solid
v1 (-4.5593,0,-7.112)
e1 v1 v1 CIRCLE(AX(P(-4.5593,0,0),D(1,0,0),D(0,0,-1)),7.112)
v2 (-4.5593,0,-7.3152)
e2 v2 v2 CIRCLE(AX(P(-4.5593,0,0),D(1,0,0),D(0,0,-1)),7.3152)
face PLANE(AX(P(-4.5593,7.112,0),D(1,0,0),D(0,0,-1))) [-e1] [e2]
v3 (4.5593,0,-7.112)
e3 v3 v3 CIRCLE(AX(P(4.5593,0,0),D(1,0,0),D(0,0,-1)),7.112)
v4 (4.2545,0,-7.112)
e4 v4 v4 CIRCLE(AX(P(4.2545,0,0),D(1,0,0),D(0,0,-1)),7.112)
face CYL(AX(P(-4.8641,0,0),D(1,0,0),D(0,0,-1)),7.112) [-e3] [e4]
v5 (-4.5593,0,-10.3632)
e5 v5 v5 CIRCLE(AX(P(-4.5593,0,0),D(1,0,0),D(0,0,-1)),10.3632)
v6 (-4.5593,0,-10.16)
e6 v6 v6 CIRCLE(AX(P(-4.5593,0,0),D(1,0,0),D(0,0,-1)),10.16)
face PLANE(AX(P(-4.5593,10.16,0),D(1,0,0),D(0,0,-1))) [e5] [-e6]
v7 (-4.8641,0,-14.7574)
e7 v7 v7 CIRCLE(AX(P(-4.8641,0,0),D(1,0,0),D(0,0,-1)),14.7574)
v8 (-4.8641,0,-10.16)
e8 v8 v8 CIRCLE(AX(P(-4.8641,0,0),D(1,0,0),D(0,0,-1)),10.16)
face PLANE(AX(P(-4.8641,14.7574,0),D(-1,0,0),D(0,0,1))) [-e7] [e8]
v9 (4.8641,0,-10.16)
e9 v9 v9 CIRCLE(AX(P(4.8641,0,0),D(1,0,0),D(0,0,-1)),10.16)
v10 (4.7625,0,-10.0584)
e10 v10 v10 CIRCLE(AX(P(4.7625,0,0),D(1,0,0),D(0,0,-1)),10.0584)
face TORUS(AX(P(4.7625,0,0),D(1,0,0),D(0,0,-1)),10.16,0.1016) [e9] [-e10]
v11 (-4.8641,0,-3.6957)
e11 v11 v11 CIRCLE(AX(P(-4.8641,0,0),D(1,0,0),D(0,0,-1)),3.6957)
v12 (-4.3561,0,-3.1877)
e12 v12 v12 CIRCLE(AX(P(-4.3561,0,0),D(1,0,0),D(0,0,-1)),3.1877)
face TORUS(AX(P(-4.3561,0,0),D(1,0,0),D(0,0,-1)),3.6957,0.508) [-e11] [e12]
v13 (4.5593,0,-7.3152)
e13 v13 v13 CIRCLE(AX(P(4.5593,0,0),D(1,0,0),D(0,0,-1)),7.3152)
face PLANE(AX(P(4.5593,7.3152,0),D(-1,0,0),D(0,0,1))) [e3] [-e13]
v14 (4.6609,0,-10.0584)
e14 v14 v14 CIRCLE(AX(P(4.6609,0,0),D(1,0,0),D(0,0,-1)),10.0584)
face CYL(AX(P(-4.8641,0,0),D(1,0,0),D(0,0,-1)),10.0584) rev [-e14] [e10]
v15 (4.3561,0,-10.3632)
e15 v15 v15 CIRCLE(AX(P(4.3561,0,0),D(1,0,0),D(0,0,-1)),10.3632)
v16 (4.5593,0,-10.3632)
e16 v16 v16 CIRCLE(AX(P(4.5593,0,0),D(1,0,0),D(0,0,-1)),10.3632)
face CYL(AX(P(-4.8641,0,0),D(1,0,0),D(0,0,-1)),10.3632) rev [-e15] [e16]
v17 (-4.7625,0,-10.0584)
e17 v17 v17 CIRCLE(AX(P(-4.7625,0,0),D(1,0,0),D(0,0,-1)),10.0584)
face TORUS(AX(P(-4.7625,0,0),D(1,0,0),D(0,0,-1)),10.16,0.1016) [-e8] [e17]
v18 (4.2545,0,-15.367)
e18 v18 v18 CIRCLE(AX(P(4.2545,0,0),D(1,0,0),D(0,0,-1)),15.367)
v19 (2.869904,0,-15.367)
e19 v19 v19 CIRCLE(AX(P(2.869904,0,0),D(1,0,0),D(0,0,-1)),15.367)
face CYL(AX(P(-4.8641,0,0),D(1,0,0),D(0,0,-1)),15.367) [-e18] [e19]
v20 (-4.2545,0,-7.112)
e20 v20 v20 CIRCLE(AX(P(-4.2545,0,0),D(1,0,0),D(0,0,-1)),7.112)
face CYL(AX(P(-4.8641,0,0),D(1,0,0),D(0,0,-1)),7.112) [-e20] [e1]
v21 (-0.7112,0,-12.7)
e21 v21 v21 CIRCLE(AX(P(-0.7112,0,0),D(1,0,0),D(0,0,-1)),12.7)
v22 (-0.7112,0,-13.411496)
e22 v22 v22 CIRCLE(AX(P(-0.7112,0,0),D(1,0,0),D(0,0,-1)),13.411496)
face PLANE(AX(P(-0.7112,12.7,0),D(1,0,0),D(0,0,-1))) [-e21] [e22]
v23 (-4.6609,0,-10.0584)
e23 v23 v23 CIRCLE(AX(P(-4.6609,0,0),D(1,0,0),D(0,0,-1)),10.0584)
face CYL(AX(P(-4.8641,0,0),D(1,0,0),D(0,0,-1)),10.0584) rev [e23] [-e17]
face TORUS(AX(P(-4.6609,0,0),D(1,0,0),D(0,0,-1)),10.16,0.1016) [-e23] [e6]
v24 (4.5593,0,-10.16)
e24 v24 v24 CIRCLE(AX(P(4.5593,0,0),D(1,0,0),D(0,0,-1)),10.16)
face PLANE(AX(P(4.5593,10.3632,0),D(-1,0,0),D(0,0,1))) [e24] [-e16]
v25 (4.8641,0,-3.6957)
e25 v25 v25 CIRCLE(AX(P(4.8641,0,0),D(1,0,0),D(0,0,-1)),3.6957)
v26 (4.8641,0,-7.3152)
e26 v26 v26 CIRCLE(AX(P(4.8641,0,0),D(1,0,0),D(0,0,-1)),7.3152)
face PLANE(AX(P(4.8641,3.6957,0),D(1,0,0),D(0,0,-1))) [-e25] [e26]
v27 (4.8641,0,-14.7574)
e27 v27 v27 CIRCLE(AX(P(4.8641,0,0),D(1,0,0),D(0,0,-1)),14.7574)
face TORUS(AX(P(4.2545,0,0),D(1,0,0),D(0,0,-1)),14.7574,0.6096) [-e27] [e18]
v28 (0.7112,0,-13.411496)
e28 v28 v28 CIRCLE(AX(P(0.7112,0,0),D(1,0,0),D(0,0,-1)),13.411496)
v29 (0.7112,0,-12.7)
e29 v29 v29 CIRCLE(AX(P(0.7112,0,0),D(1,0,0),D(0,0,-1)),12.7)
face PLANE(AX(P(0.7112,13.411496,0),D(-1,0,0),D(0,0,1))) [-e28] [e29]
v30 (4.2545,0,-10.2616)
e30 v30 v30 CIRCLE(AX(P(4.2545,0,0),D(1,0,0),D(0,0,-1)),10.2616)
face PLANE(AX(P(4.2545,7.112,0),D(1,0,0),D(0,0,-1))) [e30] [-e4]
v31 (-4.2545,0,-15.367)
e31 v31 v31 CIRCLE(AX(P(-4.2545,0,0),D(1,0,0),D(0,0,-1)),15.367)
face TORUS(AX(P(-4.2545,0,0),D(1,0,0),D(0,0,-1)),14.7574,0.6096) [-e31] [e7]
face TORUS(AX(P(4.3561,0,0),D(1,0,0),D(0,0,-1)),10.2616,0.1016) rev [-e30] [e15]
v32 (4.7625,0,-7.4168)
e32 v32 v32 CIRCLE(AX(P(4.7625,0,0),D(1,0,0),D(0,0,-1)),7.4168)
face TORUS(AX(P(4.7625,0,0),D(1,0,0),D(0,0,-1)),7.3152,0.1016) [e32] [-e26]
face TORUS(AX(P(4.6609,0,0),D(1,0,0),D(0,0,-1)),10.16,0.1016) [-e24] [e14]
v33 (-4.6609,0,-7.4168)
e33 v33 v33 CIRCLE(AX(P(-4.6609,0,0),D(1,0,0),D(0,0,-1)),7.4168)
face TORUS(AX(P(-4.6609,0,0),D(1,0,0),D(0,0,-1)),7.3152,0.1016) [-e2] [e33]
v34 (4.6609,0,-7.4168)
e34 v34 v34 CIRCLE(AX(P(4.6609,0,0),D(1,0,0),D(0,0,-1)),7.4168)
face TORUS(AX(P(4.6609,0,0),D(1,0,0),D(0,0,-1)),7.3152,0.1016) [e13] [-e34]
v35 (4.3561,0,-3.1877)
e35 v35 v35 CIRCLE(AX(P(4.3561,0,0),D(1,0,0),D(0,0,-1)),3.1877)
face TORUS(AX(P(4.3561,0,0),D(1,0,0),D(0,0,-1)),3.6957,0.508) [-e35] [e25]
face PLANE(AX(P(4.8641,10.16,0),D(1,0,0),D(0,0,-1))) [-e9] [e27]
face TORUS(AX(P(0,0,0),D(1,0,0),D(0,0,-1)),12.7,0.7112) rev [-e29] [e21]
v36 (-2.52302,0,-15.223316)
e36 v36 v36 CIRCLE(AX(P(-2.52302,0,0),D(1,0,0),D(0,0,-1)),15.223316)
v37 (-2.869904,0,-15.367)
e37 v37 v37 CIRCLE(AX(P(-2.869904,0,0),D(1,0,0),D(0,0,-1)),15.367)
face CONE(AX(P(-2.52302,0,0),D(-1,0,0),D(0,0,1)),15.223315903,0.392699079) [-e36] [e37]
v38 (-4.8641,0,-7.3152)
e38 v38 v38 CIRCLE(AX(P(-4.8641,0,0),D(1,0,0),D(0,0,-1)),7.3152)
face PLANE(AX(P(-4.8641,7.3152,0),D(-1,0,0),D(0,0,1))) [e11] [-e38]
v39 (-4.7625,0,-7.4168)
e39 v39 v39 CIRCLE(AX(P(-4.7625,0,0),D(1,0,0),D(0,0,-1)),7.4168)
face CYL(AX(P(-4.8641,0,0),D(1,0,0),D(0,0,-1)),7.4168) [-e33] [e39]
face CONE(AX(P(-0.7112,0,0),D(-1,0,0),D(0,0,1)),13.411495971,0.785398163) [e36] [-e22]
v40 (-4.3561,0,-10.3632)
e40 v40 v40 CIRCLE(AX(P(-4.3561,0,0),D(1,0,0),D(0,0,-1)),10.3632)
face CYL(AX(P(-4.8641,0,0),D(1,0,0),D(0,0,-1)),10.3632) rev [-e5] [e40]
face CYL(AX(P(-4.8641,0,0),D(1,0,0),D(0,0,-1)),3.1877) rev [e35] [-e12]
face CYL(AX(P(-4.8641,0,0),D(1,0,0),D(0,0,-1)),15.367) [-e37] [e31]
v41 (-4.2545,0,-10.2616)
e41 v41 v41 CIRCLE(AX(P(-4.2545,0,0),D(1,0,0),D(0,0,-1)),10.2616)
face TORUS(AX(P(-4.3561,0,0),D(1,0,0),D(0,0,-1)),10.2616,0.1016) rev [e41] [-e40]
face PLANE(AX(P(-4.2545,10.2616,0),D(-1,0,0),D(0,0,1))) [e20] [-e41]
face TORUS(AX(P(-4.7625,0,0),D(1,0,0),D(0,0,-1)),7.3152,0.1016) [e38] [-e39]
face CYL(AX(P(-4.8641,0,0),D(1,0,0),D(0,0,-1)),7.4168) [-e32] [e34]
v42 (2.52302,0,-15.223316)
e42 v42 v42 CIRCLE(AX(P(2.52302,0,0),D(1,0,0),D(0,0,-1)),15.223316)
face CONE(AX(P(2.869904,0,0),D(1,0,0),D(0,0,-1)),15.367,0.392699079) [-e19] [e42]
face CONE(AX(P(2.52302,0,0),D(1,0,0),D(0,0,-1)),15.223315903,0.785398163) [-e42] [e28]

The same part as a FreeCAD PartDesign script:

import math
import FreeCAD as App
import Part
import Sketcher
Q = App.Units.Quantity

doc = App.newDocument("Part")
body = doc.addObject("PartDesign::Body", "Body")

sketch1 = body.newObject("Sketcher::SketchObject", "Sketch")
sketch1.AttachmentSupport = (doc.getObject("XY_Plane"), [""])
sketch1.MapMode = "FlatFace"
sketch1.addGeometry(Part.LineSegment(App.Vector(-4.8641, 7.3152, 0), App.Vector(-4.8641, 3.6957, 0)), False)
sketch1.addGeometry(Part.ArcOfCircle(Part.Circle(App.Vector(-4.3561, 3.6957, 0), App.Vector(0, 0, 1), 0.508), math.radians(180), math.radians(270)), False)
sketch1.addGeometry(Part.LineSegment(App.Vector(-4.3561, 3.1877, 0), App.Vector(4.3561, 3.1877, 0)), False)
sketch1.addGeometry(Part.ArcOfCircle(Part.Circle(App.Vector(4.3561, 3.6957, 0), App.Vector(0, 0, 1), 0.508), math.radians(-90), math.radians(0)), False)
sketch1.addGeometry(Part.LineSegment(App.Vector(4.8641, 3.6957, 0), App.Vector(4.8641, 7.3152, 0)), False)
sketch1.addGeometry(Part.ArcOfCircle(Part.Circle(App.Vector(4.7625, 7.3152, 0), App.Vector(0, 0, 1), 0.1016), math.radians(0), math.radians(90)), False)
sketch1.addGeometry(Part.LineSegment(App.Vector(4.7625, 7.4168, 0), App.Vector(4.6609, 7.4168, 0)), False)
sketch1.addGeometry(Part.ArcOfCircle(Part.Circle(App.Vector(4.6609, 7.3152, 0), App.Vector(0, 0, 1), 0.1016), math.radians(90), math.radians(180)), False)
sketch1.addGeometry(Part.LineSegment(App.Vector(4.5593, 7.3152, 0), App.Vector(4.5593, 7.112, 0)), False)
sketch1.addGeometry(Part.LineSegment(App.Vector(4.5593, 7.112, 0), App.Vector(4.2545, 7.112, 0)), False)
sketch1.addGeometry(Part.LineSegment(App.Vector(4.2545, 7.112, 0), App.Vector(4.2545, 10.2616, 0)), False)
sketch1.addGeometry(Part.ArcOfCircle(Part.Circle(App.Vector(4.3561, 10.2616, 0), App.Vector(0, 0, 1), 0.1016), math.radians(90), math.radians(180)), False)
sketch1.addGeometry(Part.LineSegment(App.Vector(4.3561, 10.3632, 0), App.Vector(4.5593, 10.3632, 0)), False)
sketch1.addGeometry(Part.LineSegment(App.Vector(4.5593, 10.3632, 0), App.Vector(4.5593, 10.16, 0)), False)
sketch1.addGeometry(Part.ArcOfCircle(Part.Circle(App.Vector(4.6609, 10.16, 0), App.Vector(0, 0, 1), 0.1016), math.radians(180), math.radians(270)), False)
sketch1.addGeometry(Part.LineSegment(App.Vector(4.6609, 10.0584, 0), App.Vector(4.7625, 10.0584, 0)), False)
sketch1.addGeometry(Part.ArcOfCircle(Part.Circle(App.Vector(4.7625, 10.16, 0), App.Vector(0, 0, 1), 0.1016), math.radians(-90), math.radians(0)), False)
sketch1.addGeometry(Part.LineSegment(App.Vector(4.8641, 10.16, 0), App.Vector(4.8641, 14.7574, 0)), False)
sketch1.addGeometry(Part.ArcOfCircle(Part.Circle(App.Vector(4.2545, 14.7574, 0), App.Vector(0, 0, 1), 0.6096), math.radians(0), math.radians(90)), False)
sketch1.addGeometry(Part.LineSegment(App.Vector(4.2545, 15.367, 0), App.Vector(2.869904, 15.367, 0)), False)
sketch1.addGeometry(Part.LineSegment(App.Vector(2.869904, 15.367, 0), App.Vector(2.52302, 15.223316, 0)), False)
sketch1.addGeometry(Part.LineSegment(App.Vector(2.52302, 15.223316, 0), App.Vector(0.7112, 13.411496, 0)), False)
sketch1.addGeometry(Part.LineSegment(App.Vector(0.7112, 13.411496, 0), App.Vector(0.7112, 12.7, 0)), False)
sketch1.addGeometry(Part.ArcOfCircle(Part.Circle(App.Vector(0, 12.7, 0), App.Vector(0, 0, 1), 0.7112), math.radians(180), math.radians(360)), False)
sketch1.addGeometry(Part.LineSegment(App.Vector(-0.7112, 12.7, 0), App.Vector(-0.7112, 13.411496, 0)), False)
sketch1.addGeometry(Part.LineSegment(App.Vector(-0.7112, 13.411496, 0), App.Vector(-2.52302, 15.223316, 0)), False)
sketch1.addGeometry(Part.LineSegment(App.Vector(-2.52302, 15.223316, 0), App.Vector(-2.869904, 15.367, 0)), False)
sketch1.addGeometry(Part.LineSegment(App.Vector(-2.869904, 15.367, 0), App.Vector(-4.2545, 15.367, 0)), False)
sketch1.addGeometry(Part.ArcOfCircle(Part.Circle(App.Vector(-4.2545, 14.7574, 0), App.Vector(0, 0, 1), 0.6096), math.radians(90), math.radians(180)), False)
sketch1.addGeometry(Part.LineSegment(App.Vector(-4.8641, 14.7574, 0), App.Vector(-4.8641, 10.16, 0)), False)
sketch1.addGeometry(Part.ArcOfCircle(Part.Circle(App.Vector(-4.7625, 10.16, 0), App.Vector(0, 0, 1), 0.1016), math.radians(180), math.radians(270)), False)
sketch1.addGeometry(Part.LineSegment(App.Vector(-4.7625, 10.0584, 0), App.Vector(-4.6609, 10.0584, 0)), False)
sketch1.addGeometry(Part.ArcOfCircle(Part.Circle(App.Vector(-4.6609, 10.16, 0), App.Vector(0, 0, 1), 0.1016), math.radians(-90), math.radians(0)), False)
sketch1.addGeometry(Part.LineSegment(App.Vector(-4.5593, 10.16, 0), App.Vector(-4.5593, 10.3632, 0)), False)
sketch1.addGeometry(Part.LineSegment(App.Vector(-4.5593, 10.3632, 0), App.Vector(-4.3561, 10.3632, 0)), False)
sketch1.addGeometry(Part.ArcOfCircle(Part.Circle(App.Vector(-4.3561, 10.2616, 0), App.Vector(0, 0, 1), 0.1016), math.radians(0), math.radians(90)), False)
sketch1.addGeometry(Part.LineSegment(App.Vector(-4.2545, 10.2616, 0), App.Vector(-4.2545, 7.112, 0)), False)
sketch1.addGeometry(Part.LineSegment(App.Vector(-4.2545, 7.112, 0), App.Vector(-4.5593, 7.112, 0)), False)
sketch1.addGeometry(Part.LineSegment(App.Vector(-4.5593, 7.112, 0), App.Vector(-4.5593, 7.3152, 0)), False)
sketch1.addGeometry(Part.ArcOfCircle(Part.Circle(App.Vector(-4.6609, 7.3152, 0), App.Vector(0, 0, 1), 0.1016), math.radians(0), math.radians(90)), False)
sketch1.addGeometry(Part.LineSegment(App.Vector(-4.6609, 7.4168, 0), App.Vector(-4.7625, 7.4168, 0)), False)
sketch1.addGeometry(Part.ArcOfCircle(Part.Circle(App.Vector(-4.7625, 7.3152, 0), App.Vector(0, 0, 1), 0.1016), math.radians(90), math.radians(180)), False)
sketch1.addConstraint(Sketcher.Constraint("Tangent", 0, 2, 1, 1))
sketch1.addConstraint(Sketcher.Constraint("Tangent", 1, 2, 2, 1))
sketch1.addConstraint(Sketcher.Constraint("Tangent", 2, 2, 3, 1))
sketch1.addConstraint(Sketcher.Constraint("Tangent", 3, 2, 4, 1))
sketch1.addConstraint(Sketcher.Constraint("Tangent", 4, 2, 5, 1))
sketch1.addConstraint(Sketcher.Constraint("Tangent", 5, 2, 6, 1))
sketch1.addConstraint(Sketcher.Constraint("Tangent", 6, 2, 7, 1))
sketch1.addConstraint(Sketcher.Constraint("Tangent", 7, 2, 8, 1))
sketch1.addConstraint(Sketcher.Constraint("Coincident", 8, 2, 9, 1))
sketch1.addConstraint(Sketcher.Constraint("Coincident", 9, 2, 10, 1))
sketch1.addConstraint(Sketcher.Constraint("Tangent", 10, 2, 11, 2))
sketch1.addConstraint(Sketcher.Constraint("Tangent", 11, 1, 12, 1))
sketch1.addConstraint(Sketcher.Constraint("Coincident", 12, 2, 13, 1))
sketch1.addConstraint(Sketcher.Constraint("Tangent", 13, 2, 14, 1))
sketch1.addConstraint(Sketcher.Constraint("Tangent", 14, 2, 15, 1))
sketch1.addConstraint(Sketcher.Constraint("Tangent", 15, 2, 16, 1))
sketch1.addConstraint(Sketcher.Constraint("Tangent", 16, 2, 17, 1))
sketch1.addConstraint(Sketcher.Constraint("Tangent", 17, 2, 18, 1))
sketch1.addConstraint(Sketcher.Constraint("Tangent", 18, 2, 19, 1))
sketch1.addConstraint(Sketcher.Constraint("Coincident", 19, 2, 20, 1))
sketch1.addConstraint(Sketcher.Constraint("Coincident", 20, 2, 21, 1))
sketch1.addConstraint(Sketcher.Constraint("Coincident", 21, 2, 22, 1))
sketch1.addConstraint(Sketcher.Constraint("Tangent", 22, 2, 23, 2))
sketch1.addConstraint(Sketcher.Constraint("Tangent", 23, 1, 24, 1))
sketch1.addConstraint(Sketcher.Constraint("Coincident", 24, 2, 25, 1))
sketch1.addConstraint(Sketcher.Constraint("Coincident", 25, 2, 26, 1))
sketch1.addConstraint(Sketcher.Constraint("Coincident", 26, 2, 27, 1))
sketch1.addConstraint(Sketcher.Constraint("Tangent", 27, 2, 28, 1))
sketch1.addConstraint(Sketcher.Constraint("Tangent", 28, 2, 29, 1))
sketch1.addConstraint(Sketcher.Constraint("Tangent", 29, 2, 30, 1))
sketch1.addConstraint(Sketcher.Constraint("Tangent", 30, 2, 31, 1))
sketch1.addConstraint(Sketcher.Constraint("Tangent", 31, 2, 32, 1))
sketch1.addConstraint(Sketcher.Constraint("Tangent", 32, 2, 33, 1))
sketch1.addConstraint(Sketcher.Constraint("Coincident", 33, 2, 34, 1))
sketch1.addConstraint(Sketcher.Constraint("Tangent", 34, 2, 35, 2))
sketch1.addConstraint(Sketcher.Constraint("Tangent", 35, 1, 36, 1))
sketch1.addConstraint(Sketcher.Constraint("Coincident", 36, 2, 37, 1))
sketch1.addConstraint(Sketcher.Constraint("Coincident", 37, 2, 38, 1))
sketch1.addConstraint(Sketcher.Constraint("Tangent", 38, 2, 39, 1))
sketch1.addConstraint(Sketcher.Constraint("Tangent", 39, 2, 40, 1))
sketch1.addConstraint(Sketcher.Constraint("Tangent", 40, 2, 41, 1))
sketch1.addConstraint(Sketcher.Constraint("Tangent", 41, 2, 0, 1))
sketch1.addConstraint(Sketcher.Constraint("Vertical", 0))
sketch1.addConstraint(Sketcher.Constraint("Horizontal", 2))
sketch1.addConstraint(Sketcher.Constraint("Vertical", 4))
sketch1.addConstraint(Sketcher.Constraint("Horizontal", 6))
sketch1.addConstraint(Sketcher.Constraint("Vertical", 8))
sketch1.addConstraint(Sketcher.Constraint("Horizontal", 9))
sketch1.addConstraint(Sketcher.Constraint("Vertical", 10))
sketch1.addConstraint(Sketcher.Constraint("Horizontal", 12))
sketch1.addConstraint(Sketcher.Constraint("Vertical", 13))
sketch1.addConstraint(Sketcher.Constraint("Horizontal", 15))
sketch1.addConstraint(Sketcher.Constraint("Vertical", 17))
sketch1.addConstraint(Sketcher.Constraint("Horizontal", 19))
sketch1.addConstraint(Sketcher.Constraint("Vertical", 22))
sketch1.addConstraint(Sketcher.Constraint("Vertical", 24))
sketch1.addConstraint(Sketcher.Constraint("Horizontal", 27))
sketch1.addConstraint(Sketcher.Constraint("Vertical", 29))
sketch1.addConstraint(Sketcher.Constraint("Horizontal", 31))
sketch1.addConstraint(Sketcher.Constraint("Vertical", 33))
sketch1.addConstraint(Sketcher.Constraint("Horizontal", 34))
sketch1.addConstraint(Sketcher.Constraint("Vertical", 36))
sketch1.addConstraint(Sketcher.Constraint("Horizontal", 37))
sketch1.addConstraint(Sketcher.Constraint("Vertical", 38))
sketch1.addConstraint(Sketcher.Constraint("Horizontal", 40))
sketch1.addConstraint(Sketcher.Constraint("Equal", 1, 3))
sketch1.addConstraint(Sketcher.Constraint("Equal", 5, 7))
sketch1.addConstraint(Sketcher.Constraint("Equal", 7, 11))
sketch1.addConstraint(Sketcher.Constraint("Equal", 11, 14))
sketch1.addConstraint(Sketcher.Constraint("Equal", 14, 16))
sketch1.addConstraint(Sketcher.Constraint("Equal", 18, 28))
sketch1.addConstraint(Sketcher.Constraint("Equal", 16, 30))
sketch1.addConstraint(Sketcher.Constraint("Equal", 30, 32))
sketch1.addConstraint(Sketcher.Constraint("Equal", 32, 35))
sketch1.addConstraint(Sketcher.Constraint("Equal", 35, 39))
sketch1.addConstraint(Sketcher.Constraint("Equal", 39, 41))
sketch1.addConstraint(Sketcher.Constraint("Symmetric", 18, 3, 28, 3, -2))
sketch1.addConstraint(Sketcher.Constraint("Symmetric", 14, 3, 32, 3, -2))
sketch1.addConstraint(Sketcher.Constraint("Symmetric", 11, 3, 35, 3, -2))
sketch1.addConstraint(Sketcher.Constraint("Symmetric", 7, 3, 39, 3, -2))
sketch1.addConstraint(Sketcher.Constraint("Symmetric", 21, 2, 24, 2, -2))
sketch1.addConstraint(Sketcher.Constraint("Symmetric", 20, 2, 25, 2, -2))
sketch1.addConstraint(Sketcher.Constraint("Perpendicular", 21, 25))
sketch1.addConstraint(Sketcher.Constraint("Horizontal", 9, 2, 36, 2))
sketch1.addConstraint(Sketcher.Constraint("Vertical", 3, 3, 11, 3))
sketch1.addConstraint(Sketcher.Constraint("Vertical", 7, 3, 14, 3))
sketch1.addConstraint(Sketcher.Constraint("Vertical", 5, 3, 16, 3))
sketch1.addConstraint(Sketcher.Constraint("Vertical", 1, 3, 35, 3))
sketch1.addConstraint(Sketcher.Constraint("Vertical", 18, 3, 9, 2))
sketch1.addConstraint(Sketcher.Constraint("Equal", 19, 27))
sketch1.addConstraint(Sketcher.Constraint("Equal", 34, 8))
sketch1.addConstraint(Sketcher.Constraint("Equal", 8, 13))
sketch1.addConstraint(Sketcher.Constraint("Radius", 1, Q("0.02 in")))
sketch1.addConstraint(Sketcher.Constraint("Radius", 5, Q("0.004 in")))
sketch1.addConstraint(Sketcher.Constraint("Radius", 23, Q("0.028 in")))
sketch1.addConstraint(Sketcher.Constraint("DistanceY", -1, 1, 14, 3, Q("0.4 in")))
sketch1.addConstraint(Sketcher.Constraint("DistanceY", -1, 1, 23, 3, Q("0.5 in")))
sketch1.addConstraint(Sketcher.Constraint("Angle", 20, Q("-157.5 deg")))
sketch1.addConstraint(Sketcher.Constraint("DistanceX", 2, 1, 2, 2, Q("0.343 in")))
sketch1.addConstraint(Sketcher.Constraint("DistanceX", 6, 2, 6, 1, Q("0.004 in")))
sketch1.addConstraint(Sketcher.Constraint("DistanceY", 10, 1, 10, 2, Q("0.124 in")))
sketch1.addConstraint(Sketcher.Constraint("DistanceY", 17, 1, 17, 2, Q("0.181 in")))
sketch1.addConstraint(Sketcher.Constraint("DistanceY", 0, 2, 0, 1, Q("0.1425 in")))
sketch1.addConstraint(Sketcher.Constraint("Distance", 21, Q("2.5623 mm")))
sketch1.addConstraint(Sketcher.Constraint("DistanceX", 19, 2, 19, 1, Q("1.384596 mm")))
revolution = body.newObject("PartDesign::Revolution", "Revolution")
revolution.Profile = sketch1
revolution.ReferenceAxis = (sketch1, ["H_Axis"])
revolution.Angle = 360

doc.recompute()
